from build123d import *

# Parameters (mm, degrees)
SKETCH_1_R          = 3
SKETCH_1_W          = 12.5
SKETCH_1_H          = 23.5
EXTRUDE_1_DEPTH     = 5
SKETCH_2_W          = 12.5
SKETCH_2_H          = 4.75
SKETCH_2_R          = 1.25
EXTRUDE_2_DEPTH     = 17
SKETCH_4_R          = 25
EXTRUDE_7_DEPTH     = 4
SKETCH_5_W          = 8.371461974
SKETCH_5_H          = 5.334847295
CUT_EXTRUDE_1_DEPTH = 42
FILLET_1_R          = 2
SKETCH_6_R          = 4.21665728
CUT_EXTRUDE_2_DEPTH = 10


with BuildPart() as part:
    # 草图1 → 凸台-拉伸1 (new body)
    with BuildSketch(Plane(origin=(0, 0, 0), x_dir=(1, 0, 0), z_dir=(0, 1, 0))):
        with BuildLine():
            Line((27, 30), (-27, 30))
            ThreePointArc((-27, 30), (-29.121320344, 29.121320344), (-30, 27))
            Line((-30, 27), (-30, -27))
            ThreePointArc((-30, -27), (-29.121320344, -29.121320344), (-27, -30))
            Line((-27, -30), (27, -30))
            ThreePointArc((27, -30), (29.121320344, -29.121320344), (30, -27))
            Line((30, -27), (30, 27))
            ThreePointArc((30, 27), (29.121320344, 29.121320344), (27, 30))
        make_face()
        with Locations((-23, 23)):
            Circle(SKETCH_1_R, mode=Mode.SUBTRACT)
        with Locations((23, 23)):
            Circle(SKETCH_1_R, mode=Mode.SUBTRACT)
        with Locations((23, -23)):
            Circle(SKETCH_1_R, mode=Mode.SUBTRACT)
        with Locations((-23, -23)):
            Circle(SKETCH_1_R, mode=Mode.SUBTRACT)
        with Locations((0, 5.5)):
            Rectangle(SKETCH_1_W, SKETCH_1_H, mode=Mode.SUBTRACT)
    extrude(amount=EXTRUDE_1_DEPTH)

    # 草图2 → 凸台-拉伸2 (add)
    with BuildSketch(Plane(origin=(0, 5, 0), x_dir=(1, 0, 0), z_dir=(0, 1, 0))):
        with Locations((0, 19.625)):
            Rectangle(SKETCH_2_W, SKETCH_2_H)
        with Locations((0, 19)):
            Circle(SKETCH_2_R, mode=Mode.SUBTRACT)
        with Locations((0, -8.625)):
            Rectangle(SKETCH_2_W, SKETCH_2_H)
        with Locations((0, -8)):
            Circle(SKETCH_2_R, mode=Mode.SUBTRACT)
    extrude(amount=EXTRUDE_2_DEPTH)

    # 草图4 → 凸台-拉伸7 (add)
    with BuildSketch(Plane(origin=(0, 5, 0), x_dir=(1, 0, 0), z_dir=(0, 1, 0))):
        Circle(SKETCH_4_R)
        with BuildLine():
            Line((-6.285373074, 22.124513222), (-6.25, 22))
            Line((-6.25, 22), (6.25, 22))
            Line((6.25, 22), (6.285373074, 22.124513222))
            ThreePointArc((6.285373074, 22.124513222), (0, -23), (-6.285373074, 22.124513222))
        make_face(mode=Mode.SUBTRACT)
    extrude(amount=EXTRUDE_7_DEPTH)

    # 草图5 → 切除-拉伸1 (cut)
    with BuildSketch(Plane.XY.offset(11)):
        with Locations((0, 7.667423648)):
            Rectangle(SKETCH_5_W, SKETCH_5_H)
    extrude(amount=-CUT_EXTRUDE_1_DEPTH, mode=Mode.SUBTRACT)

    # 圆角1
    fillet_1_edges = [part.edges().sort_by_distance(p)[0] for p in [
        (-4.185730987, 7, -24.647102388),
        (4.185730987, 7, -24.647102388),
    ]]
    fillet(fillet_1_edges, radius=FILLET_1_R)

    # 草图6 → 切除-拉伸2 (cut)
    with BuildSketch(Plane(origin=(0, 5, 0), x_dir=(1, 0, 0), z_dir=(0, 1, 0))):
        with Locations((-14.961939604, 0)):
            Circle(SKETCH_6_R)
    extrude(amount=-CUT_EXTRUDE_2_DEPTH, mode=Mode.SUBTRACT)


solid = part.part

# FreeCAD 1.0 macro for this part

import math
import FreeCAD as App
import Part
import Sketcher


def edges_at(feature, points):
    """Names of the edges that pass closest to the given points."""
    edges = feature.Shape.Edges
    near = lambda p: min(range(len(edges)), key=lambda i: edges[i].distToShape(Part.Vertex(*p))[0])
    return sorted({f"Edge{near(p) + 1}" for p in points})

doc = App.newDocument("Part")
body = doc.addObject("PartDesign::Body", "Body")

# Sketch on XZ plane
sketch1 = body.newObject("Sketcher::SketchObject", "Sketch")
sketch1.AttachmentSupport = (doc.getObject("XZ_Plane"), [""])
sketch1.MapMode = "FlatFace"
sketch1.addGeometry(Part.LineSegment(App.Vector(27, -30, 0), App.Vector(-27, -30, 0)), False)
sketch1.addGeometry(Part.ArcOfCircle(Part.Circle(App.Vector(-27, -27, 0), App.Vector(0, 0, 1), 3), math.radians(180), math.radians(270)), False)
sketch1.addGeometry(Part.LineSegment(App.Vector(-30, -27, 0), App.Vector(-30, 27, 0)), False)
sketch1.addGeometry(Part.ArcOfCircle(Part.Circle(App.Vector(-27, 27, 0), App.Vector(0, 0, 1), 3), math.radians(90), math.radians(180)), False)
sketch1.addGeometry(Part.LineSegment(App.Vector(-27, 30, 0), App.Vector(27, 30, 0)), False)
sketch1.addGeometry(Part.ArcOfCircle(Part.Circle(App.Vector(27, 27, 0), App.Vector(0, 0, 1), 3), math.radians(0), math.radians(90)), False)
sketch1.addGeometry(Part.LineSegment(App.Vector(30, 27, 0), App.Vector(30, -27, 0)), False)
sketch1.addGeometry(Part.ArcOfCircle(Part.Circle(App.Vector(27, -27, 0), App.Vector(0, 0, 1), 3), math.radians(-90), math.radians(0)), False)
sketch1.addGeometry(Part.Circle(App.Vector(-23, 23, 0), App.Vector(0, 0, 1), 3), False)
sketch1.addGeometry(Part.Circle(App.Vector(23, 23, 0), App.Vector(0, 0, 1), 3), False)
sketch1.addGeometry(Part.Circle(App.Vector(-23, -23, 0), App.Vector(0, 0, 1), 3), False)
sketch1.addGeometry(Part.LineSegment(App.Vector(6.2, 6.2, 0), App.Vector(-6.2, 6.2, 0)), False)
sketch1.addGeometry(Part.LineSegment(App.Vector(-6.2, 6.2, 0), App.Vector(-6.2, -17.2, 0)), False)
sketch1.addGeometry(Part.LineSegment(App.Vector(-6.2, -17.2, 0), App.Vector(6.2, -17.2, 0)), False)
sketch1.addGeometry(Part.LineSegment(App.Vector(6.2, -17.2, 0), App.Vector(6.2, 6.2, 0)), False)
sketch1.addGeometry(Part.Circle(App.Vector(23, -23, 0), App.Vector(0, 0, 1), 3), False)
sketch1.addConstraint(Sketcher.Constraint("Tangent", 0, 2, 1, 2))
sketch1.addConstraint(Sketcher.Constraint("Tangent", 1, 1, 2, 1))
sketch1.addConstraint(Sketcher.Constraint("Tangent", 2, 2, 3, 2))
sketch1.addConstraint(Sketcher.Constraint("Tangent", 3, 1, 4, 1))
sketch1.addConstraint(Sketcher.Constraint("Tangent", 4, 2, 5, 2))
sketch1.addConstraint(Sketcher.Constraint("Tangent", 5, 1, 6, 1))
sketch1.addConstraint(Sketcher.Constraint("Tangent", 6, 2, 7, 2))
sketch1.addConstraint(Sketcher.Constraint("Tangent", 7, 1, 0, 1))
sketch1.addConstraint(Sketcher.Constraint("Coincident", 11, 2, 12, 1))
sketch1.addConstraint(Sketcher.Constraint("Coincident", 12, 2, 13, 1))
sketch1.addConstraint(Sketcher.Constraint("Coincident", 13, 2, 14, 1))
sketch1.addConstraint(Sketcher.Constraint("Coincident", 14, 2, 11, 1))
sketch1.addConstraint(Sketcher.Constraint("Horizontal", 0))
sketch1.addConstraint(Sketcher.Constraint("Vertical", 2))
sketch1.addConstraint(Sketcher.Constraint("Horizontal", 4))
sketch1.addConstraint(Sketcher.Constraint("Vertical", 6))
sketch1.addConstraint(Sketcher.Constraint("Horizontal", 11))
sketch1.addConstraint(Sketcher.Constraint("Vertical", 12))
sketch1.addConstraint(Sketcher.Constraint("Horizontal", 13))
sketch1.addConstraint(Sketcher.Constraint("Vertical", 14))
sketch1.addConstraint(Sketcher.Constraint("Equal", 1, 3))
sketch1.addConstraint(Sketcher.Constraint("Equal", 3, 5))
sketch1.addConstraint(Sketcher.Constraint("Equal", 5, 7))
sketch1.addConstraint(Sketcher.Constraint("Equal", 7, 8))
sketch1.addConstraint(Sketcher.Constraint("Equal", 8, 9))
sketch1.addConstraint(Sketcher.Constraint("Equal", 9, 10))
sketch1.addConstraint(Sketcher.Constraint("Equal", 10, 15))
sketch1.addConstraint(Sketcher.Constraint("Symmetric", 1, 3, 5, 3, -1, 1))
sketch1.addConstraint(Sketcher.Constraint("Symmetric", 9, 3, 10, 3, -1, 1))
sketch1.addConstraint(Sketcher.Constraint("Symmetric", 8, 3, 15, 3, -1, 1))
sketch1.addConstraint(Sketcher.Constraint("Symmetric", 8, 3, 9, 3, -2))
sketch1.addConstraint(Sketcher.Constraint("Equal", 4, 2))
sketch1.addConstraint(Sketcher.Constraint("Diameter", 8, 6.0))
sketch1.addConstraint(Sketcher.Constraint("DistanceX", 0, 2, 0, 1, 54.0))
sketch1.addConstraint(Sketcher.Constraint("DistanceX", 11, 2, 11, 1, 12.5))
sketch1.addConstraint(Sketcher.Constraint("DistanceY", 12, 2, 12, 1, 23.5))
sketch1.addConstraint(Sketcher.Constraint("DistanceX", 8, 3, -1, 1, 23.0))
sketch1.addConstraint(Sketcher.Constraint("DistanceY", -1, 1, 8, 3, 23.0))
sketch1.addConstraint(Sketcher.Constraint("DistanceX", 11, 2, -1, 1, 6.25))
sketch1.addConstraint(Sketcher.Constraint("DistanceY", -1, 1, 11, 2, 6.25))
pad1 = body.newObject("PartDesign::Pad", "Pad")
pad1.Profile = sketch1
pad1.Length = 5
pad1.Reversed = True

# Sketch on XZ plane
sketch2 = body.newObject("Sketcher::SketchObject", "Sketch001")
sketch2.AttachmentSupport = (doc.getObject("XZ_Plane"), [""])
sketch2.MapMode = "FlatFace"
sketch2.AttachmentOffset = App.Placement(App.Vector(0, 0, -5), App.Rotation())
sketch2.addGeometry(Part.LineSegment(App.Vector(-6.2, -22, 0), App.Vector(-6.2, -17.2, 0)), False)
sketch2.addGeometry(Part.LineSegment(App.Vector(-6.2, -17.2, 0), App.Vector(6.2, -17.2, 0)), False)
sketch2.addGeometry(Part.LineSegment(App.Vector(6.2, -17.2, 0), App.Vector(6.2, -22, 0)), False)
sketch2.addGeometry(Part.LineSegment(App.Vector(6.2, -22, 0), App.Vector(-6.2, -22, 0)), False)
sketch2.addGeometry(Part.Circle(App.Vector(0, -19, 0), App.Vector(0, 0, 1), 1.2), False)
sketch2.addGeometry(Part.LineSegment(App.Vector(-6.2, 6.2, 0), App.Vector(-6.2, 11, 0)), False)
sketch2.addGeometry(Part.LineSegment(App.Vector(-6.2, 11, 0), App.Vector(6.2, 11, 0)), False)
sketch2.addGeometry(Part.LineSegment(App.Vector(6.2, 11, 0), App.Vector(6.2, 6.2, 0)), False)
sketch2.addGeometry(Part.LineSegment(App.Vector(6.2, 6.2, 0), App.Vector(-6.2, 6.2, 0)), False)
sketch2.addGeometry(Part.Circle(App.Vector(0, 8, 0), App.Vector(0, 0, 1), 1.2), False)
sketch2.addConstraint(Sketcher.Constraint("Coincident", 0, 2, 1, 1))
sketch2.addConstraint(Sketcher.Constraint("Coincident", 1, 2, 2, 1))
sketch2.addConstraint(Sketcher.Constraint("Coincident", 2, 2, 3, 1))
sketch2.addConstraint(Sketcher.Constraint("Coincident", 3, 2, 0, 1))
sketch2.addConstraint(Sketcher.Constraint("Coincident", 5, 2, 6, 1))
sketch2.addConstraint(Sketcher.Constraint("Coincident", 6, 2, 7, 1))
sketch2.addConstraint(Sketcher.Constraint("Coincident", 7, 2, 8, 1))
sketch2.addConstraint(Sketcher.Constraint("Coincident", 8, 2, 5, 1))
sketch2.addConstraint(Sketcher.Constraint("Vertical", 0))
sketch2.addConstraint(Sketcher.Constraint("Horizontal", 1))
sketch2.addConstraint(Sketcher.Constraint("Vertical", 2))
sketch2.addConstraint(Sketcher.Constraint("Horizontal", 3))
sketch2.addConstraint(Sketcher.Constraint("Vertical", 5))
sketch2.addConstraint(Sketcher.Constraint("Horizontal", 6))
sketch2.addConstraint(Sketcher.Constraint("Vertical", 7))
sketch2.addConstraint(Sketcher.Constraint("Horizontal", 8))
sketch2.addConstraint(Sketcher.Constraint("Equal", 4, 9))
sketch2.addConstraint(Sketcher.Constraint("PointOnObject", 4, 3, -2))
sketch2.addConstraint(Sketcher.Constraint("PointOnObject", 9, 3, -2))
sketch2.addConstraint(Sketcher.Constraint("Vertical", 3, 2, 5, 2))
sketch2.addConstraint(Sketcher.Constraint("Vertical", 2, 2, 6, 2))
sketch2.addConstraint(Sketcher.Constraint("Equal", 2, 5))
sketch2.addConstraint(Sketcher.Constraint("Diameter", 4, 2.5))
sketch2.addConstraint(Sketcher.Constraint("DistanceX", 1, 1, 1, 2, 12.5))
sketch2.addConstraint(Sketcher.Constraint("DistanceY", 4, 3, -1, 1, 19.0))
sketch2.addConstraint(Sketcher.Constraint("DistanceY", -1, 1, 9, 3, 8.0))
sketch2.addConstraint(Sketcher.Constraint("DistanceY", 2, 2, -1, 1, 22.0))
sketch2.addConstraint(Sketcher.Constraint("DistanceY", -1, 1, 5, 2, 11.0))
sketch2.addConstraint(Sketcher.Constraint("DistanceY", 0, 1, 0, 2, 4.75))
sketch2.addConstraint(Sketcher.Constraint("DistanceX", 0, 2, -1, 1, 6.25))
pad2 = body.newObject("PartDesign::Pad", "Pad001")
pad2.Profile = sketch2
pad2.Length = 17
pad2.Reversed = True

# Sketch on XZ plane
sketch3 = body.newObject("Sketcher::SketchObject", "Sketch002")
sketch3.AttachmentSupport = (doc.getObject("XZ_Plane"), [""])
sketch3.MapMode = "FlatFace"
sketch3.AttachmentOffset = App.Placement(App.Vector(0, 0, -5), App.Rotation())
sketch3.addGeometry(Part.Circle(App.Vector(0, 0, 0), App.Vector(0, 0, 1), 25), False)
sketch3.addGeometry(Part.ArcOfCircle(Part.Circle(App.Vector(0, 0, 0), App.Vector(0, 0, 1), 23), math.radians(-74), math.radians(254)), False)
sketch3.addGeometry(Part.LineSegment(App.Vector(-6.29, -22.12, 0), App.Vector(-6.25, -22, 0)), False)
sketch3.addGeometry(Part.LineSegment(App.Vector(-6.25, -22, 0), App.Vector(6.25, -22, 0)), False)
sketch3.addGeometry(Part.LineSegment(App.Vector(6.25, -22, 0), App.Vector(6.29, -22.12, 0)), False)
sketch3.addConstraint(Sketcher.Constraint("Coincident", 1, 2, 2, 1))
sketch3.addConstraint(Sketcher.Constraint("Coincident", 2, 2, 3, 1))
sketch3.addConstraint(Sketcher.Constraint("Coincident", 3, 2, 4, 1))
sketch3.addConstraint(Sketcher.Constraint("Coincident", 4, 2, 1, 1))
sketch3.addConstraint(Sketcher.Constraint("Horizontal", 3))
sketch3.addConstraint(Sketcher.Constraint("Coincident", 0, 3, -1, 1))
sketch3.addConstraint(Sketcher.Constraint("Coincident", 1, 3, -1, 1))
sketch3.addConstraint(Sketcher.Constraint("Horizontal", 1, 2, 4, 2))
sketch3.addConstraint(Sketcher.Constraint("Equal", 2, 4))
sketch3.addConstraint(Sketcher.Constraint("Diameter", 0, 50.0))
sketch3.addConstraint(Sketcher.Constraint("Radius", 1, 23.0))
sketch3.addConstraint(Sketcher.Constraint("DistanceX", 3, 1, 3, 2, 12.5))
sketch3.addConstraint(Sketcher.Constraint("DistanceY", 2, 2, -1, 1, 22.0))
sketch3.addConstraint(Sketcher.Constraint("DistanceX", 1, 2, -1, 1, 6.285373))
pad3 = body.newObject("PartDesign::Pad", "Pad002")
pad3.Profile = sketch3
pad3.Length = 4
pad3.Reversed = True

# Sketch on XY plane
sketch4 = body.newObject("Sketcher::SketchObject", "Sketch003")
sketch4.AttachmentSupport = (doc.getObject("XY_Plane"), [""])
sketch4.MapMode = "FlatFace"
sketch4.AttachmentOffset = App.Placement(App.Vector(0, 0, 11), App.Rotation())
sketch4.addGeometry(Part.LineSegment(App.Vector(-4, 10, 0), App.Vector(-4, 5, 0)), False)
sketch4.addGeometry(Part.LineSegment(App.Vector(-4, 5, 0), App.Vector(4, 5, 0)), False)
sketch4.addGeometry(Part.LineSegment(App.Vector(4, 5, 0), App.Vector(4, 10, 0)), False)
sketch4.addGeometry(Part.LineSegment(App.Vector(4, 10, 0), App.Vector(-4, 10, 0)), False)
sketch4.addConstraint(Sketcher.Constraint("Coincident", 0, 2, 1, 1))
sketch4.addConstraint(Sketcher.Constraint("Coincident", 1, 2, 2, 1))
sketch4.addConstraint(Sketcher.Constraint("Coincident", 2, 2, 3, 1))
sketch4.addConstraint(Sketcher.Constraint("Coincident", 3, 2, 0, 1))
sketch4.addConstraint(Sketcher.Constraint("Vertical", 0))
sketch4.addConstraint(Sketcher.Constraint("Horizontal", 1))
sketch4.addConstraint(Sketcher.Constraint("Vertical", 2))
sketch4.addConstraint(Sketcher.Constraint("Horizontal", 3))
sketch4.addConstraint(Sketcher.Constraint("DistanceY", -1, 1, 0, 2, 5.0))
sketch4.addConstraint(Sketcher.Constraint("DistanceX", 1, 1, 1, 2, 8.371462))
sketch4.addConstraint(Sketcher.Constraint("DistanceY", 0, 2, 0, 1, 5.334847))
sketch4.addConstraint(Sketcher.Constraint("DistanceX", 0, 2, -1, 1, 4.185731))
pocket1 = body.newObject("PartDesign::Pocket", "Pocket")
pocket1.Profile = sketch4
pocket1.Length = 42
doc.recompute()

fillet = body.newObject("PartDesign::Fillet", "Fillet")
fillet.Base = (pocket1, edges_at(pocket1, [(-4.186, 7, -24.647), (4.186, 7, -24.647)]))
fillet.Radius = 2

# Sketch on XZ plane
sketch5 = body.newObject("Sketcher::SketchObject", "Sketch004")
sketch5.AttachmentSupport = (doc.getObject("XZ_Plane"), [""])
sketch5.MapMode = "FlatFace"
sketch5.AttachmentOffset = App.Placement(App.Vector(0, 0, -5), App.Rotation())
sketch5.addGeometry(Part.Circle(App.Vector(-15, 0, 0), App.Vector(0, 0, 1), 4.2), False)
sketch5.addConstraint(Sketcher.Constraint("PointOnObject", 0, 3, -1))
sketch5.addConstraint(Sketcher.Constraint("Diameter", 0, 8.433315))
sketch5.addConstraint(Sketcher.Constraint("DistanceX", 0, 3, -1, 1, 14.96194))
pocket2 = body.newObject("PartDesign::Pocket", "Pocket001")
pocket2.Profile = sketch5
pocket2.Length = 10
pocket2.Reversed = True

doc.recompute()
